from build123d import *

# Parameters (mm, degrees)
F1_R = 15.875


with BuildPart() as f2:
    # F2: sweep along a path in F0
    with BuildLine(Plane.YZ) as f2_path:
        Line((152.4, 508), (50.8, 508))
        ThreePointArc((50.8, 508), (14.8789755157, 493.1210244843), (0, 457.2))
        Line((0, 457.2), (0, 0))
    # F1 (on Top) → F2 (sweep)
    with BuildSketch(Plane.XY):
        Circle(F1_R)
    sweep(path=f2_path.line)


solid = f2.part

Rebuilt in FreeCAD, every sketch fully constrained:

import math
import FreeCAD as App
import Part
import Sketcher
Q = App.Units.Quantity

doc = App.newDocument("Part")
body = doc.addObject("PartDesign::Body", "Body")

# Sketch on XY plane
sketch1 = body.newObject("Sketcher::SketchObject", "Sketch")
sketch1.AttachmentSupport = (doc.getObject("XY_Plane"), [""])
sketch1.MapMode = "FlatFace"
sketch1.addGeometry(Part.Circle(App.Vector(0, 0, 0), App.Vector(0, 0, 1), 16), False)
sketch1.addConstraint([
    Sketcher.Constraint("Coincident", 0, 3, -1, 1),
    Sketcher.Constraint("Diameter", 0, Q("1.25 in")),
])

# Sketch on YZ plane
sketch2 = body.newObject("Sketcher::SketchObject", "Sketch001")
sketch2.AttachmentSupport = (doc.getObject("YZ_Plane"), [""])
sketch2.MapMode = "FlatFace"
sketch2.addGeometry([
    Part.LineSegment(App.Vector(152, 508, 0), App.Vector(51, 508, 0)),
    Part.ArcOfCircle(Part.Circle(App.Vector(51, 457, 0), App.Vector(0, 0, 1), 51), math.radians(90), math.radians(180)),
    Part.LineSegment(App.Vector(0, 457, 0), App.Vector(0, 0, 0)),
], False)
sketch2.addConstraint([
    Sketcher.Constraint("Tangent", 0, 2, 1, 1),
    Sketcher.Constraint("Tangent", 1, 2, 2, 1),
    Sketcher.Constraint("Horizontal", 0),
    Sketcher.Constraint("Vertical", 2),
    Sketcher.Constraint("Coincident", 2, 2, -1, 1),
    Sketcher.Constraint("Radius", 1, Q("2 in")),
    Sketcher.Constraint("DistanceX", 0, 2, 0, 1, Q("4 in")),
    Sketcher.Constraint("DistanceY", 2, 2, 2, 1, Q("18 in")),
])
doc.recompute()

additivepipe = body.newObject("PartDesign::AdditivePipe", "AdditivePipe")
additivepipe.Profile = sketch1
additivepipe.Spine = (sketch2, ["Edge1", "Edge2", "Edge3"])

doc.recompute()
